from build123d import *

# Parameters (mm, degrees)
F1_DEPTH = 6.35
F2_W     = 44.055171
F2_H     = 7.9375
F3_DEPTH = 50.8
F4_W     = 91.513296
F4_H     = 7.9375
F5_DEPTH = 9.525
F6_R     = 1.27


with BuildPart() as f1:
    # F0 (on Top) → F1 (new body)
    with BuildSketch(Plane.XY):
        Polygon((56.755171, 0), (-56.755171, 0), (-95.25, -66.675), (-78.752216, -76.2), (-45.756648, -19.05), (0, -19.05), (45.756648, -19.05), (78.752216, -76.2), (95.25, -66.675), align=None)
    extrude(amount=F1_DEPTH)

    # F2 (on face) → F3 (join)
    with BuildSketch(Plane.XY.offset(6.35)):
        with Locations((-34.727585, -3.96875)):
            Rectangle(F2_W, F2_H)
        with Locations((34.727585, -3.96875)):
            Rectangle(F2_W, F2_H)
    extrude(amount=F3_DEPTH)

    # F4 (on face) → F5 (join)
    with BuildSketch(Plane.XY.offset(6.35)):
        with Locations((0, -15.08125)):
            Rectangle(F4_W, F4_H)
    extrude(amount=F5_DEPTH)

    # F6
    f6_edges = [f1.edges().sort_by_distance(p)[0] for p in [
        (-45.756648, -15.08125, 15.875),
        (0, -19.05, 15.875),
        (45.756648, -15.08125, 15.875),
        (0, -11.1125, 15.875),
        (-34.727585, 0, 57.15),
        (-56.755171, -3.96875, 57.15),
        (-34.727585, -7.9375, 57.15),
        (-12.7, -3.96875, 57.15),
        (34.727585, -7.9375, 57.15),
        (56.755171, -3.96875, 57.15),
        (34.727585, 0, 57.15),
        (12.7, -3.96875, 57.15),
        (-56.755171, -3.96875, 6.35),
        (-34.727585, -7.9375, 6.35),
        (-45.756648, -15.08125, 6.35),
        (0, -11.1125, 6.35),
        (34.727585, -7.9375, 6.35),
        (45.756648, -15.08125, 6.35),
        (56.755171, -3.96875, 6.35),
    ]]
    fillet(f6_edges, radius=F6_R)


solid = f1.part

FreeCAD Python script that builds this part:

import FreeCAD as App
import Part
import Sketcher
Q = App.Units.Quantity


def edges_at(feature, points):
    """Names of the edges that pass closest to the given points."""
    edges = feature.Shape.Edges
    near = lambda p: min(range(len(edges)), key=lambda i: edges[i].distToShape(Part.Vertex(*p))[0])
    return sorted({f"Edge{near(p) + 1}" for p in points})


def add_polygon(sketch, points):
    """Adds a closed chain of lines whose ends are joined by coincident constraints."""
    first, n = sketch.GeometryCount, len(points)
    for a, b in zip(points, points[1:] + points[:1]):
        sketch.addGeometry(Part.LineSegment(App.Vector(*a, 0), App.Vector(*b, 0)), False)
    for i in range(n):
        sketch.addConstraint(Sketcher.Constraint("Coincident", first + i, 2, first + (i + 1) % n, 1))

doc = App.newDocument("Part")
params = doc.addObject("Spreadsheet::Sheet", "Params")
for row, (alias, value) in enumerate([
    ("sketch1_length", "0.75 in"),
    ("pad1_length", "0.25 in"),
    ("sketch2_height", "0.3125 in"),
    ("pad2_length", "2 in"),
    ("sketch3_height", "0.3125 in"),
    ("pad3_length", "0.375 in"),
    ("fillet_radius", "0.05 in"),
], start=1):
    params.set(f"A{row}", alias)
    params.set(f"B{row}", "=" + value)
    params.setAlias(f"B{row}", alias)

body = doc.addObject("PartDesign::Body", "Body")

# Sketch on XY plane
sketch1 = doc.addObject("Sketcher::SketchObject", "Sketch")
body.addObject(sketch1)
sketch1.AttachmentSupport = (doc.XY_Plane, [""])
sketch1.MapMode = "FlatFace"
add_polygon(sketch1, [(57, 0), (-57, 0), (-95, -67), (-79, -76), (-46, -19), (46, -19), (79, -76), (95, -67)])  # lines 0-7
sketch1.addConstraint([
    Sketcher.Constraint("Horizontal", 0),
    Sketcher.Constraint("Horizontal", 4),
    Sketcher.Constraint("Symmetric", 0, 2, 7, 2, -1, 1),
    Sketcher.Constraint("Symmetric", 2, 2, 5, 2, -2),
    Sketcher.Constraint("Symmetric", 1, 2, 6, 2, -2),
    Sketcher.Constraint("Perpendicular", 1, 2),
    Sketcher.Constraint("Perpendicular", 2, 3),
    Sketcher.Constraint("Perpendicular", 5, 6),
    Sketcher.Constraint("DistanceY", 2, 2, -1, 1, Q("3 in")),
    Sketcher.Constraint("Angle", 1, Q("-120 deg")),
    Sketcher.Constraint("Distance", 2, Q("0.75 in")),
    Sketcher.Constraint("DistanceX", 1, 2, -1, 1, Q("3.75 in")),
    Sketcher.Constraint("DistanceY", 3, 2, -1, 1, Q("0.75 in")),
])
sketch1.setExpression("Constraints[18]", "Params.sketch1_length")
pad1 = doc.addObject("PartDesign::Pad", "Pad")
body.addObject(pad1)
pad1.Profile = sketch1
pad1.setExpression("Length", "Params.pad1_length")

# Sketch on XY plane
sketch2 = doc.addObject("Sketcher::SketchObject", "Sketch001")
body.addObject(sketch2)
sketch2.AttachmentSupport = (doc.XY_Plane, [""])
sketch2.MapMode = "FlatFace"
sketch2.AttachmentOffset = App.Placement(App.Vector(0, 0, 0.25 * 25.4), App.Rotation())
add_polygon(sketch2, [(-57, 0), (-57, -8), (-13, -8), (-13, 0)])  # lines 0-3
add_polygon(sketch2, [(13, 0), (13, -8), (57, -8), (57, 0)])  # lines 4-7
sketch2.addConstraint([
    Sketcher.Constraint("Vertical", 0),
    Sketcher.Constraint("Horizontal", 1),
    Sketcher.Constraint("Vertical", 2),
    Sketcher.Constraint("Horizontal", 3),
    Sketcher.Constraint("Vertical", 4),
    Sketcher.Constraint("Horizontal", 5),
    Sketcher.Constraint("Vertical", 6),
    Sketcher.Constraint("Horizontal", 7),
    Sketcher.Constraint("Symmetric", 3, 2, 6, 2, -1, 1),
    Sketcher.Constraint("Symmetric", 1, 2, 4, 2, -2),
    Sketcher.Constraint("PointOnObject", 2, 2, -1),
    Sketcher.Constraint("DistanceX", 1, 2, 4, 2, Q("1 in")),
    Sketcher.Constraint("DistanceY", 0, 2, 0, 1, Q("0.3125 in")),
    Sketcher.Constraint("DistanceX", 1, 1, 1, 2, 44.055171),
])
sketch2.setExpression("Constraints[20]", "Params.sketch2_height")
pad2 = doc.addObject("PartDesign::Pad", "Pad001")
body.addObject(pad2)
pad2.Profile = sketch2
pad2.setExpression("Length", "Params.pad2_length")

# Sketch on XY plane
sketch3 = doc.addObject("Sketcher::SketchObject", "Sketch002")
body.addObject(sketch3)
sketch3.AttachmentSupport = (doc.XY_Plane, [""])
sketch3.MapMode = "FlatFace"
sketch3.AttachmentOffset = App.Placement(App.Vector(0, 0, 0.25 * 25.4), App.Rotation())
add_polygon(sketch3, [(-46, -11), (-46, -19), (46, -19), (46, -11)])  # lines 0-3
sketch3.addConstraint([
    Sketcher.Constraint("Vertical", 0),
    Sketcher.Constraint("Horizontal", 1),
    Sketcher.Constraint("Vertical", 2),
    Sketcher.Constraint("Horizontal", 3),
    Sketcher.Constraint("DistanceY", 0, 2, 0, 1, Q("0.3125 in")),
    Sketcher.Constraint("DistanceY", 0, 2, -1, 1, Q("0.75 in")),
    Sketcher.Constraint("DistanceX", 1, 1, 1, 2, 91.513296),
    Sketcher.Constraint("DistanceX", 0, 2, -1, 1, 45.756648),
])
sketch3.setExpression("Constraints[8]", "Params.sketch3_height")
pad3 = doc.addObject("PartDesign::Pad", "Pad002")
body.addObject(pad3)
pad3.Profile = sketch3
pad3.setExpression("Length", "Params.pad3_length")
doc.recompute()

fillet = doc.addObject("PartDesign::Fillet", "Fillet")
body.addObject(fillet)
fillet.Base = (pad3, edges_at(pad3, [
    (-45.757, -15.081, 15.875),
    (0, -19.05, 15.875),
    (45.757, -15.081, 15.875),
    (0, -11.113, 15.875),
    (-34.728, 0, 57.15),
    (-56.755, -3.969, 57.15),
    (-34.728, -7.938, 57.15),
    (-12.7, -3.969, 57.15),
    (34.728, -7.938, 57.15),
    (56.755, -3.969, 57.15),
    (34.728, 0, 57.15),
    (12.7, -3.969, 57.15),
    (-56.755, -3.969, 6.35),
    (-34.728, -7.938, 6.35),
    (-45.757, -15.081, 6.35),
    (0, -11.113, 6.35),
    (34.728, -7.938, 6.35),
    (45.757, -15.081, 6.35),
    (56.755, -3.969, 6.35),
]))
fillet.setExpression("Radius", "Params.fillet_radius")

doc.recompute()
